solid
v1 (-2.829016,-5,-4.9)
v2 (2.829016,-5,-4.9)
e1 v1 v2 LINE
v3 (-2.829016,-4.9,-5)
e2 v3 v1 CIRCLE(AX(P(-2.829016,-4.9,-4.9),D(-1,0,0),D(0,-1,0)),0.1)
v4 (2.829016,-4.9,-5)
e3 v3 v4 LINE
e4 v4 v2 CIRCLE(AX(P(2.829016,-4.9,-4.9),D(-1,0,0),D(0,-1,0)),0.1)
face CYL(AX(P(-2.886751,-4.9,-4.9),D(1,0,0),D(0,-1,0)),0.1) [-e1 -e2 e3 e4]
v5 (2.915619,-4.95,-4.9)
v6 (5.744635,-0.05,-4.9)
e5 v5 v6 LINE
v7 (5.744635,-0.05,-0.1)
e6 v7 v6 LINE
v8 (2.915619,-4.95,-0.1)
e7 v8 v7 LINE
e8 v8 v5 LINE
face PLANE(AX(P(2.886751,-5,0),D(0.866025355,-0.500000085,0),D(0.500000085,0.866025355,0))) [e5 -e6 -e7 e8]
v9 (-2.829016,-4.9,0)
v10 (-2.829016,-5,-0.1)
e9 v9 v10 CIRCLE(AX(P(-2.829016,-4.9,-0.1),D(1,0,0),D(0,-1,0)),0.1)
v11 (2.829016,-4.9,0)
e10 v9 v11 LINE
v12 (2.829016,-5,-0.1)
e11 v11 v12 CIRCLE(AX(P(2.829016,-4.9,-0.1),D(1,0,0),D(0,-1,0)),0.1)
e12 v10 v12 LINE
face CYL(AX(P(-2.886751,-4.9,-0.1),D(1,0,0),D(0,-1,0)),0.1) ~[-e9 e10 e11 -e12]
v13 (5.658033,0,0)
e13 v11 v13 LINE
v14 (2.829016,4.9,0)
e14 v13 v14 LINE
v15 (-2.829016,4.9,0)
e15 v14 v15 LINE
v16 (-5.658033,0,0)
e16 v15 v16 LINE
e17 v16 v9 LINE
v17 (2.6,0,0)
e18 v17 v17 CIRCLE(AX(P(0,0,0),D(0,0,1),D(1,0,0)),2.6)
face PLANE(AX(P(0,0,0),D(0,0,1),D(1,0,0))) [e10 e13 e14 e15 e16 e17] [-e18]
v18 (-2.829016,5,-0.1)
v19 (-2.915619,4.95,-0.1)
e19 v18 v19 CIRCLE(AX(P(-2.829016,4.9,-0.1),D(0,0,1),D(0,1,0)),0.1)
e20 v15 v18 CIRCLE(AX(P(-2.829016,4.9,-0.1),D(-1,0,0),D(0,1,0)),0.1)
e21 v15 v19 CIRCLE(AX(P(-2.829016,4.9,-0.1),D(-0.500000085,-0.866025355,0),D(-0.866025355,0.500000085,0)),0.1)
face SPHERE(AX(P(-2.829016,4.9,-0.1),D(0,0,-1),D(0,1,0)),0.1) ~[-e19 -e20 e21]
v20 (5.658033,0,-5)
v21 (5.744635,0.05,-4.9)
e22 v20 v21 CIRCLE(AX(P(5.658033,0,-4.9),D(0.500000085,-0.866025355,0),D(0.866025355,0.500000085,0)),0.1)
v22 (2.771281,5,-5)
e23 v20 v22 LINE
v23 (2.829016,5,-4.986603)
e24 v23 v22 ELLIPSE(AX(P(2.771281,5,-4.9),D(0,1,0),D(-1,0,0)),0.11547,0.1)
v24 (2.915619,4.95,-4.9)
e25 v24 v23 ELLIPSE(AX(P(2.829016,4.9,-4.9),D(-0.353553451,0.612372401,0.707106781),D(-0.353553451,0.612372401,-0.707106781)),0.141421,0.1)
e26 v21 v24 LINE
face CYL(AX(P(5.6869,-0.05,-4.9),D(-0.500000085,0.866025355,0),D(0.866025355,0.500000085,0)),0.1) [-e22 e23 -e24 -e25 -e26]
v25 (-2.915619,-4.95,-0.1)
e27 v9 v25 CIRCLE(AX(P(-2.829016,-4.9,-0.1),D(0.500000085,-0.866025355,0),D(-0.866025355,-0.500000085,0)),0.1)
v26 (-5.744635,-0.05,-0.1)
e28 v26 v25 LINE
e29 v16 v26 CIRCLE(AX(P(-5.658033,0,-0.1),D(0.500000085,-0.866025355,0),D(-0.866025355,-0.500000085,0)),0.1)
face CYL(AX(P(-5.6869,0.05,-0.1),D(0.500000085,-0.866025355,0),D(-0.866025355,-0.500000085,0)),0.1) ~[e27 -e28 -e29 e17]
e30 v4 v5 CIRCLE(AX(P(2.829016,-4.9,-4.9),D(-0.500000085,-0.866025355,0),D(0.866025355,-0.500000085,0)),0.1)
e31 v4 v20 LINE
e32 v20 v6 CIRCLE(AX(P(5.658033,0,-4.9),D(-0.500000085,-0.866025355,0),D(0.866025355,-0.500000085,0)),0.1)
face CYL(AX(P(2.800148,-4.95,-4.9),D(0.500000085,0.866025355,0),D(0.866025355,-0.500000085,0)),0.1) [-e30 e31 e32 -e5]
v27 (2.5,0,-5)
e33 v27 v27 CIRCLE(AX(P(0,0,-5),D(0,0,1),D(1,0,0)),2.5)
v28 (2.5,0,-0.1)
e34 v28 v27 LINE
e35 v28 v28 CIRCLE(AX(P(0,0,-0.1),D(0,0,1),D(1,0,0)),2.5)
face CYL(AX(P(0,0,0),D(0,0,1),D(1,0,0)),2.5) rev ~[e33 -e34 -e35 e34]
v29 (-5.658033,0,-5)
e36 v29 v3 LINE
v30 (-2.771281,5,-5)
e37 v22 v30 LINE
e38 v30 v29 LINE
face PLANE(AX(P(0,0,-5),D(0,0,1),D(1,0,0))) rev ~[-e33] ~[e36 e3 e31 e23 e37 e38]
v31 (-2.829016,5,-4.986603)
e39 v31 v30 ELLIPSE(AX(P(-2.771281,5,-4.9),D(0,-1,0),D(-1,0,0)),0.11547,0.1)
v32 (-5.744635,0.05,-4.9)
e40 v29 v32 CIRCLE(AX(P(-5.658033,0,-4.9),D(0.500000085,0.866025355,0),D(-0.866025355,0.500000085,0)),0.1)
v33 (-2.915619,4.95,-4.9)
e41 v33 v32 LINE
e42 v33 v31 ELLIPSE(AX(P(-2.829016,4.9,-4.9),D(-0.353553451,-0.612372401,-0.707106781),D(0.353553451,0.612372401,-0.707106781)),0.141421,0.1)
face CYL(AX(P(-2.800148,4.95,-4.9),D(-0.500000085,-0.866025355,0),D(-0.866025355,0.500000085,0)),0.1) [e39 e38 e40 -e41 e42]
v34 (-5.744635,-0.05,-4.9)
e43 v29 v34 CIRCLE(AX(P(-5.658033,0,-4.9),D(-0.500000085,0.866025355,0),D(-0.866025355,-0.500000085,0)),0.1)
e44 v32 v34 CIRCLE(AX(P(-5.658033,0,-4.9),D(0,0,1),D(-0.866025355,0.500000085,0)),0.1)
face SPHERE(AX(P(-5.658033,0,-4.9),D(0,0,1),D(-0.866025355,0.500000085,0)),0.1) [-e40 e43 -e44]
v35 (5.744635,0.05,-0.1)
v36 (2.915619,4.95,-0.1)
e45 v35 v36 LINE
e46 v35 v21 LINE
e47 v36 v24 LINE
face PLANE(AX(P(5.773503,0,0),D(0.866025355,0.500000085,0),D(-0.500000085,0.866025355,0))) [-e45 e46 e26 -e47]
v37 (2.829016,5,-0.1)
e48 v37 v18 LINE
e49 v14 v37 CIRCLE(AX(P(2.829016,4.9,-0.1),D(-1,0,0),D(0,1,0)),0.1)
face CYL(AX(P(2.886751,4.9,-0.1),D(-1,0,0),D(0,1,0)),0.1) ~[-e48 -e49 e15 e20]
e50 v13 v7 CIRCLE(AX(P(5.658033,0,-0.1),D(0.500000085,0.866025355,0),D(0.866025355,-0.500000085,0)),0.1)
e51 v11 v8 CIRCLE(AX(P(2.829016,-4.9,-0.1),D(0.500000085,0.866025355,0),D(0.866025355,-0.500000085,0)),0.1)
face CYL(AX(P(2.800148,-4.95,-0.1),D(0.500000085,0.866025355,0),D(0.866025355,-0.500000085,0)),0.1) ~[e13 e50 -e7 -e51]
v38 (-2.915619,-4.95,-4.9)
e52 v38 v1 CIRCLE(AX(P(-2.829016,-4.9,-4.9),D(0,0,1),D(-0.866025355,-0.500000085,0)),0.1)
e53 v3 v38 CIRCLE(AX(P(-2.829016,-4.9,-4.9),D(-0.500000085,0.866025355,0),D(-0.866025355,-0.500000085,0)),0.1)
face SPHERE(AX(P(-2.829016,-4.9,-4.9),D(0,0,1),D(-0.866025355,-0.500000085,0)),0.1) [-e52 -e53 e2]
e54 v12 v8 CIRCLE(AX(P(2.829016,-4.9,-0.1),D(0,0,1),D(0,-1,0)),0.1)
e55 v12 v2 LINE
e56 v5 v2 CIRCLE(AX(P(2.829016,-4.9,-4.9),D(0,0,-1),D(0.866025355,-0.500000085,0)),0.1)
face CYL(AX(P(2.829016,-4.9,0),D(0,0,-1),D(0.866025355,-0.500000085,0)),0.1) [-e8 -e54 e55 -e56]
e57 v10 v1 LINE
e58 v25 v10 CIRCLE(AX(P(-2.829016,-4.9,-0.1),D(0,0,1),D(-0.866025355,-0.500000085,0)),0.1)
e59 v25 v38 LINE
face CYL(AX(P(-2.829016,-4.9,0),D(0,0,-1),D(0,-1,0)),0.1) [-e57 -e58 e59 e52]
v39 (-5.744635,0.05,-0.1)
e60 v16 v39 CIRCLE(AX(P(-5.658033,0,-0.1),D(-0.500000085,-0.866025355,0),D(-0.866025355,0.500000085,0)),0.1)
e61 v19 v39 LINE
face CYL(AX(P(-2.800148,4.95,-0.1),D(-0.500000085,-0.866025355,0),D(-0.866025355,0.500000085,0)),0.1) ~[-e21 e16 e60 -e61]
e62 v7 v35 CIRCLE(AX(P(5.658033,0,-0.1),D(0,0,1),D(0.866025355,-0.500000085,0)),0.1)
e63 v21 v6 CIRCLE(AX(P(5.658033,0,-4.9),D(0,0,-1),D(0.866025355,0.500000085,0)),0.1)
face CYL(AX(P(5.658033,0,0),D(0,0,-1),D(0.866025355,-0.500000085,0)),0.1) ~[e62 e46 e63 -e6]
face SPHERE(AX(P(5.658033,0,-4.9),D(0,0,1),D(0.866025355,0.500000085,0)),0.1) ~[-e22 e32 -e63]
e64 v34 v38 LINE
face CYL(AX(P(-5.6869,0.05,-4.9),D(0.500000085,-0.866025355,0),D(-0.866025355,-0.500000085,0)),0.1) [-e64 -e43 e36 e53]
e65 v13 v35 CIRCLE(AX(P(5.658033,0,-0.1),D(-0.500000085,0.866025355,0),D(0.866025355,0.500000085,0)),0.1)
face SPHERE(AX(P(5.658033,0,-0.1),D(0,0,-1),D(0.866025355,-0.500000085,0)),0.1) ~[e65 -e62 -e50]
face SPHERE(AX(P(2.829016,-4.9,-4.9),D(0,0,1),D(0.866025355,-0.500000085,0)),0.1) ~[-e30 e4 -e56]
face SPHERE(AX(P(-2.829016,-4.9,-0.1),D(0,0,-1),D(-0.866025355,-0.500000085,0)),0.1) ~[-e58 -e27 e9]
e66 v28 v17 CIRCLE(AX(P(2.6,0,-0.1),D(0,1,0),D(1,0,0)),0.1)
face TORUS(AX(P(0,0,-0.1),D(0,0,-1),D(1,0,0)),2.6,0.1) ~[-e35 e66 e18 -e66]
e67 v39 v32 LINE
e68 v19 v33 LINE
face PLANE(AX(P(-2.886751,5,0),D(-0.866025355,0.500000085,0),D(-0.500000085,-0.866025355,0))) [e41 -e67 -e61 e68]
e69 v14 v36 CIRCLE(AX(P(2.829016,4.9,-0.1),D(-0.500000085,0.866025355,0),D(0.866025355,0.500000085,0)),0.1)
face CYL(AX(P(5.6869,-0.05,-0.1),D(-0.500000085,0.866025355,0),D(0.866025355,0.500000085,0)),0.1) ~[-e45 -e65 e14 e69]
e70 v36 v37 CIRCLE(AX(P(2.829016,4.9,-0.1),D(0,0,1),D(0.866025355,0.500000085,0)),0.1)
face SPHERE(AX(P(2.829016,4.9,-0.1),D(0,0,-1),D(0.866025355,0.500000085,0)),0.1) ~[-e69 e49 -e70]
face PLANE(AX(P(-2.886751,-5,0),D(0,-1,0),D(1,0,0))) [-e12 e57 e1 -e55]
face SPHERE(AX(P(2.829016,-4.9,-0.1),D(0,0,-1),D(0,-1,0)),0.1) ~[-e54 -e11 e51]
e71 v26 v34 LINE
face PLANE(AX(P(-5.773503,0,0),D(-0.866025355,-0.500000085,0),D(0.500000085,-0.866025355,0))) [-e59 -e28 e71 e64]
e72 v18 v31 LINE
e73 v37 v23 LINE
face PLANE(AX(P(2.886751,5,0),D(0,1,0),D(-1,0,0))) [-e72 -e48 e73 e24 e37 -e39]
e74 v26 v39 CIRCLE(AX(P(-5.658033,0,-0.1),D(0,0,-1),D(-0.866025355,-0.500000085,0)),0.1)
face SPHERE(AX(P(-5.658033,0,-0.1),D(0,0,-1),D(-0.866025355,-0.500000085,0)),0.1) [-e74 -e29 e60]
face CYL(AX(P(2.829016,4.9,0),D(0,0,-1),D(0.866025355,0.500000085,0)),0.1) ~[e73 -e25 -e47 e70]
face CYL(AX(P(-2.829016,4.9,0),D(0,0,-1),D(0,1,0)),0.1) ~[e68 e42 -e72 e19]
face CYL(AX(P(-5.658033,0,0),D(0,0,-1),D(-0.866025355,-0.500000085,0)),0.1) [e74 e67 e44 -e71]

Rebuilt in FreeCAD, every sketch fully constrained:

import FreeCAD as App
import Part
import Sketcher

V = App.Vector
Q = App.Units.Quantity


def edges_at(feature, points):
    """Names of the edges that pass closest to the given points."""
    edges = feature.Shape.Edges
    near = lambda p: min(range(len(edges)), key=lambda i: edges[i].distToShape(Part.Vertex(*p))[0])
    return sorted({f"Edge{near(p) + 1}" for p in points})

doc = App.newDocument("Part")
body = doc.addObject("PartDesign::Body", "Body")

# Sketch on XY plane
sketch1 = doc.addObject("Sketcher::SketchObject", "Sketch")
body.addObject(sketch1)
sketch1.AttachmentSupport = (doc.XY_Plane, [""])
sketch1.MapMode = "FlatFace"
sketch1.addGeometry(Part.LineSegment(V(2.886751, -5, 0), V(5.773503, 0, 0)), False)
sketch1.addGeometry(Part.LineSegment(V(5.773503, 0, 0), V(2.886751, 5, 0)), False)
sketch1.addGeometry(Part.LineSegment(V(2.886751, 5, 0), V(-2.886751, 5, 0)), False)
sketch1.addGeometry(Part.LineSegment(V(-2.886751, 5, 0), V(-5.773503, 0, 0)), False)
sketch1.addGeometry(Part.LineSegment(V(-5.773503, 0, 0), V(-2.886751, -5, 0)), False)
sketch1.addGeometry(Part.LineSegment(V(-2.886751, -5, 0), V(2.886751, -5, 0)), False)
sketch1.addGeometry(Part.Circle(V(0, 0, 0), V(0, 0, 1), 2.5), False)
sketch1.addConstraint(Sketcher.Constraint("Coincident", 0, 2, 1, 1))
sketch1.addConstraint(Sketcher.Constraint("Coincident", 1, 2, 2, 1))
sketch1.addConstraint(Sketcher.Constraint("Coincident", 2, 2, 3, 1))
sketch1.addConstraint(Sketcher.Constraint("Coincident", 3, 2, 4, 1))
sketch1.addConstraint(Sketcher.Constraint("Coincident", 4, 2, 5, 1))
sketch1.addConstraint(Sketcher.Constraint("Coincident", 5, 2, 0, 1))
sketch1.addConstraint(Sketcher.Constraint("Horizontal", 2))
sketch1.addConstraint(Sketcher.Constraint("Horizontal", 5))
sketch1.addConstraint(Sketcher.Constraint("Coincident", 6, 3, -1, 1))
sketch1.addConstraint(Sketcher.Constraint("Symmetric", 0, 2, 3, 2, -1, 1))
sketch1.addConstraint(Sketcher.Constraint("Symmetric", 1, 2, 4, 2, -1, 1))
sketch1.addConstraint(Sketcher.Constraint("PointOnObject", 0, 2, -1))
sketch1.addConstraint(Sketcher.Constraint("Parallel", 0, 3))
sketch1.addConstraint(Sketcher.Constraint("Vertical", 2, 2, 4, 2))
sketch1.addConstraint(Sketcher.Constraint("Diameter", 6, 5.0))
sketch1.addConstraint(Sketcher.Constraint("Angle", 0, Q("59.999994 deg")))
sketch1.addConstraint(Sketcher.Constraint("DistanceY", -1, 1, 1, 2, 5.0))
sketch1.addConstraint(Sketcher.Constraint("DistanceX", 2, 2, 2, 1, 5.773502))
pad1 = doc.addObject("PartDesign::Pad", "Pad")
body.addObject(pad1)
pad1.Profile = sketch1
pad1.Length = 5
pad1.Reversed = True
doc.recompute()

fillet = doc.addObject("PartDesign::Fillet", "Fillet")
body.addObject(fillet)
fillet.Base = (pad1, edges_at(pad1, [
    (4.33, -2.5, -5),
    (5.774, 0, -2.5),
    (4.33, 2.5, -5),
    (0, -5, -5),
    (-4.33, -2.5, 0),
    (0, -5, 0),
    (4.33, -2.5, 0),
    (4.33, 2.5, 0),
    (0, 5, 0),
    (-4.33, 2.5, 0),
    (-2.5, 0, 0),
    (2.887, -5, -2.5),
    (-2.887, -5, -2.5),
    (2.887, 5, -2.5),
    (-2.887, 5, -2.5),
    (-5.774, 0, -2.5),
    (-4.33, 2.5, -5),
    (-4.33, -2.5, -5),
]))
fillet.Radius = 0.1

doc.recompute()
